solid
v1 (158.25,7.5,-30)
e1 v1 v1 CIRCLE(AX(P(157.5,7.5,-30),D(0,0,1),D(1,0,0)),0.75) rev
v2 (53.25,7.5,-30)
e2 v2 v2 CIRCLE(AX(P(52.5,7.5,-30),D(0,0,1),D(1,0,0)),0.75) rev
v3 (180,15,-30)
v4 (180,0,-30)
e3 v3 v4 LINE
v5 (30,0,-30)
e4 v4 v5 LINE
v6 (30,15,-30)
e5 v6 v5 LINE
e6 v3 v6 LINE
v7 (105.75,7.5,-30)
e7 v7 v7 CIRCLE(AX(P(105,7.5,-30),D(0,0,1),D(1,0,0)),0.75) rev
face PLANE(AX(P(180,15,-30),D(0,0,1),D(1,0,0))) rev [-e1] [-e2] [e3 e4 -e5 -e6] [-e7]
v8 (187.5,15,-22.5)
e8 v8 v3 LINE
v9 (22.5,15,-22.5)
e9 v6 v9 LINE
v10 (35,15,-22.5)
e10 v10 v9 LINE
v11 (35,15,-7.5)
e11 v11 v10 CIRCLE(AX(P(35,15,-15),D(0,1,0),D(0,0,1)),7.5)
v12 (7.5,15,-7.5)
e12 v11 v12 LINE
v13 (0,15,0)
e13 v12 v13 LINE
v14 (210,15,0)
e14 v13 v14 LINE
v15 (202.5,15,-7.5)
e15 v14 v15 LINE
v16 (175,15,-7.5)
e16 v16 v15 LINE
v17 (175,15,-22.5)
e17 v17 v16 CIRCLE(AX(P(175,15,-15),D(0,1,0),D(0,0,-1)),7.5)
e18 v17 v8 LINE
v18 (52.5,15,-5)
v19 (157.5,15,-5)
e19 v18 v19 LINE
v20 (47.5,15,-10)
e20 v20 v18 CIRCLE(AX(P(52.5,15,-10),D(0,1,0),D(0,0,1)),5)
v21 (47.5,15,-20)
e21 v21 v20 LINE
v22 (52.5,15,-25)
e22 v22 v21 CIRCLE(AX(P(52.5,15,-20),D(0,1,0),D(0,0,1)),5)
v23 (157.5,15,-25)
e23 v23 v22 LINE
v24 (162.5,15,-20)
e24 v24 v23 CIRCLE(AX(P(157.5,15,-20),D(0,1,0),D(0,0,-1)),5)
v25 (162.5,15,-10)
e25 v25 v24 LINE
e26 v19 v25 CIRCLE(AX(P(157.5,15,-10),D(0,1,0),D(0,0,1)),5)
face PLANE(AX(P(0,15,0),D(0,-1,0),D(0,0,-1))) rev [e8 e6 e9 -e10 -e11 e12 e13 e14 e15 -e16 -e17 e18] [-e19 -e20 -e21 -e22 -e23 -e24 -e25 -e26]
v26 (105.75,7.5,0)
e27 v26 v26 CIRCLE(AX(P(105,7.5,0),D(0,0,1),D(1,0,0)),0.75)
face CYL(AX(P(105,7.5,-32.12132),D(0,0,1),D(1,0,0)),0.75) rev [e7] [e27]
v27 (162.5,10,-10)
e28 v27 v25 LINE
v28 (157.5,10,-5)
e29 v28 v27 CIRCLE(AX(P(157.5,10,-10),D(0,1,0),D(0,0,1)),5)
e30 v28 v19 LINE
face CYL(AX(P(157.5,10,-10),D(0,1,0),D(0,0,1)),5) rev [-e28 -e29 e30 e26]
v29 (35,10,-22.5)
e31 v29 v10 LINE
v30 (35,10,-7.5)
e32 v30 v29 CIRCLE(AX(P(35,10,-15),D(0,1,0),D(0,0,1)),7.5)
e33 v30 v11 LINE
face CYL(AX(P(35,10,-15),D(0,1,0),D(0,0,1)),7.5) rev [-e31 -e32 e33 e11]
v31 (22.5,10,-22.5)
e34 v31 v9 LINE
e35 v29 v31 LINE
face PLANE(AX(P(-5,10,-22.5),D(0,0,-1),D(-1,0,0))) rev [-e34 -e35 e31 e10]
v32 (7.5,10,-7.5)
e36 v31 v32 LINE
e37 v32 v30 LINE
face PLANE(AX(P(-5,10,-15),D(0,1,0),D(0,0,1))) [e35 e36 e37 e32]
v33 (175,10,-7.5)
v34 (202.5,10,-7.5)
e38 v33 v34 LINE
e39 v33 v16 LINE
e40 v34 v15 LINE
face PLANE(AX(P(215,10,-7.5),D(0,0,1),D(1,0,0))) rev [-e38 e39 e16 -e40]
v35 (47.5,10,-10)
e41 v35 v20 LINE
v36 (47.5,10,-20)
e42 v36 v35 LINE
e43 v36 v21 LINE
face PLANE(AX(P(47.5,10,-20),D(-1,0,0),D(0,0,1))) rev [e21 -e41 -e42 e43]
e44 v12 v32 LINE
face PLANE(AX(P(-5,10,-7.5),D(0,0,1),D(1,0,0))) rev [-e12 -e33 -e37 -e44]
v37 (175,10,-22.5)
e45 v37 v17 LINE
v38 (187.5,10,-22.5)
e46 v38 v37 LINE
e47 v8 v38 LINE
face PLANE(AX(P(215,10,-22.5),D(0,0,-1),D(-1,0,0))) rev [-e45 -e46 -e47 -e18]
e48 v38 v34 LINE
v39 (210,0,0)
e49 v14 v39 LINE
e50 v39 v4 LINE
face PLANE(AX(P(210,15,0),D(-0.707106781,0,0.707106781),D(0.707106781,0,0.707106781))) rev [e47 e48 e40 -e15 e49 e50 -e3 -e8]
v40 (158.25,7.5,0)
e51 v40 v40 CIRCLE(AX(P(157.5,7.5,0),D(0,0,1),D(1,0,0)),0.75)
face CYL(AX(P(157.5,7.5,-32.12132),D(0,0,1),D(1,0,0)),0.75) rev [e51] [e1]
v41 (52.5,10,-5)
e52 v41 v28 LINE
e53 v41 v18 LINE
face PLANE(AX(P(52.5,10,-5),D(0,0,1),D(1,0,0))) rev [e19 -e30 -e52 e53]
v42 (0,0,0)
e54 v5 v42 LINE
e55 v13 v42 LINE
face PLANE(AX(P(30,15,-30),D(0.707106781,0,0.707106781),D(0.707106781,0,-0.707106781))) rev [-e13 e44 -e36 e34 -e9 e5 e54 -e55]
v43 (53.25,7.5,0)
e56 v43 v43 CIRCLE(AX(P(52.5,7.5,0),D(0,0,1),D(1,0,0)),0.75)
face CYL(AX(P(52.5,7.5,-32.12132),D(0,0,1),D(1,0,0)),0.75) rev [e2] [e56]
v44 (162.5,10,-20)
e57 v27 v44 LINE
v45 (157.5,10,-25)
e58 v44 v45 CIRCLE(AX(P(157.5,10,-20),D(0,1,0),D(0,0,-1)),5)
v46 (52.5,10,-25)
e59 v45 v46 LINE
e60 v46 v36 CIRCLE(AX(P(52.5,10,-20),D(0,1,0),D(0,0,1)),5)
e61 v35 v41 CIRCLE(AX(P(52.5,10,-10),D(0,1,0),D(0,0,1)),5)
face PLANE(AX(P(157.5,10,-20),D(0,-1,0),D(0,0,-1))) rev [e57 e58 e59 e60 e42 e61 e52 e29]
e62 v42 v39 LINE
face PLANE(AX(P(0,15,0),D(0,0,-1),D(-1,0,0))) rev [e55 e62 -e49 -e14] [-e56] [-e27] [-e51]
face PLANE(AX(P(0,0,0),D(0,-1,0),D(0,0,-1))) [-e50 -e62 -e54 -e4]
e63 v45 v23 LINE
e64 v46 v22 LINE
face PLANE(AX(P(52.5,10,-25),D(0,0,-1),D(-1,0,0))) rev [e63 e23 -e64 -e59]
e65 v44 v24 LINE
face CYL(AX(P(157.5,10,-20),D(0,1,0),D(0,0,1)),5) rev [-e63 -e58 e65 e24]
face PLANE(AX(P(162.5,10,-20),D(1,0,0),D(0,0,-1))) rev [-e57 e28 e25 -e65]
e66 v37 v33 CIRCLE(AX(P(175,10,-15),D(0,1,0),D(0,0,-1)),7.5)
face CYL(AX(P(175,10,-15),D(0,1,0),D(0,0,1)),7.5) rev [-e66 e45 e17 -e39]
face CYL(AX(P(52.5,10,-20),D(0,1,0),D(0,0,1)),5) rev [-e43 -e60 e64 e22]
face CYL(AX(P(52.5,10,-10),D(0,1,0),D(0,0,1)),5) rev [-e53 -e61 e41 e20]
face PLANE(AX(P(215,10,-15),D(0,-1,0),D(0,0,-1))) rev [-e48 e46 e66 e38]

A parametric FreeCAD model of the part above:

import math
import FreeCAD as App
import Part
import Sketcher
from FreeCAD import Vector


def add_polygon(sketch, points):
    """Adds a closed chain of lines whose ends are joined by coincident constraints."""
    first, n = sketch.GeometryCount, len(points)
    for a, b in zip(points, points[1:] + points[:1]):
        sketch.addGeometry(Part.LineSegment(App.Vector(*a, 0), App.Vector(*b, 0)), False)
    for i in range(n):
        sketch.addConstraint(Sketcher.Constraint("Coincident", first + i, 2, first + (i + 1) % n, 1))

doc = App.newDocument("Part")
body = doc.addObject("PartDesign::Body", "Body")

# Sketch on XZ plane
sketch1 = doc.addObject("Sketcher::SketchObject", "Sketch")
body.addObject(sketch1)
sketch1.AttachmentSupport = (doc.XZ_Plane, [""])
sketch1.MapMode = "FlatFace"
add_polygon(sketch1, [(0, 0), (210, 0), (180, -30), (30, -30)])  # lines 0-3
sketch1.addConstraint([
    Sketcher.Constraint("Horizontal", 0),
    Sketcher.Constraint("Horizontal", 2),
    Sketcher.Constraint("Coincident", 3, 2, -1, 1),
    Sketcher.Constraint("Perpendicular", 1, 3),
    Sketcher.Constraint("Equal", 1, 3),
    Sketcher.Constraint("DistanceX", 0, 1, 0, 2, 210.0),
    Sketcher.Constraint("DistanceX", 2, 2, 2, 1, 150.0),
])
pad1 = doc.addObject("PartDesign::Pad", "Pad")
body.addObject(pad1)
pad1.Profile = sketch1
pad1.Length = 15
pad1.Reversed = True

# Sketch on XZ plane
sketch2 = doc.addObject("Sketcher::SketchObject", "Sketch001")
body.addObject(sketch2)
sketch2.AttachmentSupport = (doc.XZ_Plane, [""])
sketch2.MapMode = "FlatFace"
sketch2.AttachmentOffset = App.Placement(Vector(0, 0, -15), App.Rotation())
sketch2.addGeometry([
    Part.LineSegment(Vector(35, -22, 0), Vector(-5, -22, 0)),  # 0
    Part.ArcOfCircle(Part.Circle(Vector(-5, -15, 0), Vector(0, 0, 1), 8), math.radians(90), math.radians(270)),  # 1
    Part.LineSegment(Vector(-5, -8, 0), Vector(35, -8, 0)),  # 2
    Part.ArcOfCircle(Part.Circle(Vector(35, -15, 0), Vector(0, 0, 1), 8), math.radians(-90), math.radians(90)),  # 3
    Part.LineSegment(Vector(215, -22, 0), Vector(175, -22, 0)),  # 4
    Part.ArcOfCircle(Part.Circle(Vector(175, -15, 0), Vector(0, 0, 1), 8), math.radians(90), math.radians(270)),  # 5
    Part.LineSegment(Vector(175, -8, 0), Vector(215, -8, 0)),  # 6
    Part.ArcOfCircle(Part.Circle(Vector(215, -15, 0), Vector(0, 0, 1), 8), math.radians(-90), math.radians(90)),  # 7
], False)
sketch2.addConstraint([
    Sketcher.Constraint("Tangent", 0, 2, 1, 2),
    Sketcher.Constraint("Tangent", 1, 1, 2, 1),
    Sketcher.Constraint("Tangent", 2, 2, 3, 2),
    Sketcher.Constraint("Tangent", 3, 1, 0, 1),
    Sketcher.Constraint("Tangent", 4, 2, 5, 2),
    Sketcher.Constraint("Tangent", 5, 1, 6, 1),
    Sketcher.Constraint("Tangent", 6, 2, 7, 2),
    Sketcher.Constraint("Tangent", 7, 1, 4, 1),
    Sketcher.Constraint("Horizontal", 0),
    Sketcher.Constraint("Horizontal", 2),
    Sketcher.Constraint("Horizontal", 4),
    Sketcher.Constraint("Horizontal", 6),
    Sketcher.Constraint("Equal", 3, 5),
    Sketcher.Constraint("Horizontal", 3, 3, 5, 3),
    Sketcher.Constraint("Equal", 2, 4),
    Sketcher.Constraint("Radius", 1, 7.5),
    Sketcher.Constraint("DistanceX", 0, 2, 0, 1, 40.0),
    Sketcher.Constraint("DistanceX", 1, 3, -1, 1, 5.0),
    Sketcher.Constraint("DistanceY", 1, 3, -1, 1, 15.0),
    Sketcher.Constraint("DistanceX", -1, 1, 5, 3, 175.0),
])
pocket1 = doc.addObject("PartDesign::Pocket", "Pocket")
body.addObject(pocket1)
pocket1.Profile = sketch2
pocket1.Length = 5
pocket1.Reversed = True

# Sketch on XY plane
sketch3 = doc.addObject("Sketcher::SketchObject", "Sketch002")
body.addObject(sketch3)
sketch3.AttachmentSupport = (doc.XY_Plane, [""])
sketch3.MapMode = "FlatFace"
sketch3.addGeometry([
    Part.Circle(Vector(105, 7.5, 0), Vector(0, 0, 1), 0.8),
    Part.Circle(Vector(52.5, 7.5, 0), Vector(0, 0, 1), 0.8),
    Part.Circle(Vector(157.5, 7.5, 0), Vector(0, 0, 1), 0.8),
], False)
sketch3.addConstraint([
    Sketcher.Constraint("Equal", 0, 1),
    Sketcher.Constraint("Equal", 1, 2),
    Sketcher.Constraint("Horizontal", 0, 3, 1, 3),
    Sketcher.Constraint("Horizontal", 1, 3, 2, 3),
    Sketcher.Constraint("Diameter", 0, 1.5),
    Sketcher.Constraint("DistanceX", -1, 1, 0, 3, 105.0),
    Sketcher.Constraint("DistanceX", 1, 3, 2, 3, 105.0),
    Sketcher.Constraint("DistanceY", -1, 1, 0, 3, 7.5),
    Sketcher.Constraint("DistanceX", -1, 1, 1, 3, 52.5),
])
pocket2 = doc.addObject("PartDesign::Pocket", "Pocket001")
body.addObject(pocket2)
pocket2.Profile = sketch3
pocket2.Length = 30

# Sketch on XZ plane
sketch4 = doc.addObject("Sketcher::SketchObject", "Sketch003")
body.addObject(sketch4)
sketch4.AttachmentSupport = (doc.XZ_Plane, [""])
sketch4.MapMode = "FlatFace"
sketch4.AttachmentOffset = App.Placement(Vector(0, 0, -15), App.Rotation())
sketch4.addGeometry([
    Part.LineSegment(Vector(158, -25, 0), Vector(52, -25, 0)),  # 0
    Part.ArcOfCircle(Part.Circle(Vector(52, -20, 0), Vector(0, 0, 1), 5), math.radians(180), math.radians(270)),  # 1
    Part.LineSegment(Vector(48, -20, 0), Vector(48, -10, 0)),  # 2
    Part.ArcOfCircle(Part.Circle(Vector(52, -10, 0), Vector(0, 0, 1), 5), math.radians(90), math.radians(180)),  # 3
    Part.LineSegment(Vector(52, -5, 0), Vector(158, -5, 0)),  # 4
    Part.ArcOfCircle(Part.Circle(Vector(158, -10, 0), Vector(0, 0, 1), 5), math.radians(0), math.radians(90)),  # 5
    Part.LineSegment(Vector(162, -10, 0), Vector(162, -20, 0)),  # 6
    Part.ArcOfCircle(Part.Circle(Vector(158, -20, 0), Vector(0, 0, 1), 5), math.radians(-90), math.radians(0)),  # 7
], False)
sketch4.addConstraint([
    Sketcher.Constraint("Tangent", 0, 2, 1, 2),
    Sketcher.Constraint("Tangent", 1, 1, 2, 1),
    Sketcher.Constraint("Tangent", 2, 2, 3, 2),
    Sketcher.Constraint("Tangent", 3, 1, 4, 1),
    Sketcher.Constraint("Tangent", 4, 2, 5, 2),
    Sketcher.Constraint("Tangent", 5, 1, 6, 1),
    Sketcher.Constraint("Tangent", 6, 2, 7, 2),
    Sketcher.Constraint("Tangent", 7, 1, 0, 1),
    Sketcher.Constraint("Horizontal", 0),
    Sketcher.Constraint("Vertical", 2),
    Sketcher.Constraint("Horizontal", 4),
    Sketcher.Constraint("Vertical", 6),
    Sketcher.Constraint("Equal", 1, 3),
    Sketcher.Constraint("Equal", 3, 5),
    Sketcher.Constraint("Equal", 5, 7),
    Sketcher.Constraint("Radius", 1, 5.0),
    Sketcher.Constraint("DistanceX", 0, 2, 0, 1, 105.0),
    Sketcher.Constraint("DistanceY", 2, 1, 2, 2, 10.0),
    Sketcher.Constraint("DistanceY", 1, 3, -1, 1, 20.0),
    Sketcher.Constraint("DistanceX", -1, 1, 1, 3, 52.5),
])
pocket3 = doc.addObject("PartDesign::Pocket", "Pocket002")
body.addObject(pocket3)
pocket3.Profile = sketch4
pocket3.Length = 5
pocket3.Reversed = True

doc.recompute()
